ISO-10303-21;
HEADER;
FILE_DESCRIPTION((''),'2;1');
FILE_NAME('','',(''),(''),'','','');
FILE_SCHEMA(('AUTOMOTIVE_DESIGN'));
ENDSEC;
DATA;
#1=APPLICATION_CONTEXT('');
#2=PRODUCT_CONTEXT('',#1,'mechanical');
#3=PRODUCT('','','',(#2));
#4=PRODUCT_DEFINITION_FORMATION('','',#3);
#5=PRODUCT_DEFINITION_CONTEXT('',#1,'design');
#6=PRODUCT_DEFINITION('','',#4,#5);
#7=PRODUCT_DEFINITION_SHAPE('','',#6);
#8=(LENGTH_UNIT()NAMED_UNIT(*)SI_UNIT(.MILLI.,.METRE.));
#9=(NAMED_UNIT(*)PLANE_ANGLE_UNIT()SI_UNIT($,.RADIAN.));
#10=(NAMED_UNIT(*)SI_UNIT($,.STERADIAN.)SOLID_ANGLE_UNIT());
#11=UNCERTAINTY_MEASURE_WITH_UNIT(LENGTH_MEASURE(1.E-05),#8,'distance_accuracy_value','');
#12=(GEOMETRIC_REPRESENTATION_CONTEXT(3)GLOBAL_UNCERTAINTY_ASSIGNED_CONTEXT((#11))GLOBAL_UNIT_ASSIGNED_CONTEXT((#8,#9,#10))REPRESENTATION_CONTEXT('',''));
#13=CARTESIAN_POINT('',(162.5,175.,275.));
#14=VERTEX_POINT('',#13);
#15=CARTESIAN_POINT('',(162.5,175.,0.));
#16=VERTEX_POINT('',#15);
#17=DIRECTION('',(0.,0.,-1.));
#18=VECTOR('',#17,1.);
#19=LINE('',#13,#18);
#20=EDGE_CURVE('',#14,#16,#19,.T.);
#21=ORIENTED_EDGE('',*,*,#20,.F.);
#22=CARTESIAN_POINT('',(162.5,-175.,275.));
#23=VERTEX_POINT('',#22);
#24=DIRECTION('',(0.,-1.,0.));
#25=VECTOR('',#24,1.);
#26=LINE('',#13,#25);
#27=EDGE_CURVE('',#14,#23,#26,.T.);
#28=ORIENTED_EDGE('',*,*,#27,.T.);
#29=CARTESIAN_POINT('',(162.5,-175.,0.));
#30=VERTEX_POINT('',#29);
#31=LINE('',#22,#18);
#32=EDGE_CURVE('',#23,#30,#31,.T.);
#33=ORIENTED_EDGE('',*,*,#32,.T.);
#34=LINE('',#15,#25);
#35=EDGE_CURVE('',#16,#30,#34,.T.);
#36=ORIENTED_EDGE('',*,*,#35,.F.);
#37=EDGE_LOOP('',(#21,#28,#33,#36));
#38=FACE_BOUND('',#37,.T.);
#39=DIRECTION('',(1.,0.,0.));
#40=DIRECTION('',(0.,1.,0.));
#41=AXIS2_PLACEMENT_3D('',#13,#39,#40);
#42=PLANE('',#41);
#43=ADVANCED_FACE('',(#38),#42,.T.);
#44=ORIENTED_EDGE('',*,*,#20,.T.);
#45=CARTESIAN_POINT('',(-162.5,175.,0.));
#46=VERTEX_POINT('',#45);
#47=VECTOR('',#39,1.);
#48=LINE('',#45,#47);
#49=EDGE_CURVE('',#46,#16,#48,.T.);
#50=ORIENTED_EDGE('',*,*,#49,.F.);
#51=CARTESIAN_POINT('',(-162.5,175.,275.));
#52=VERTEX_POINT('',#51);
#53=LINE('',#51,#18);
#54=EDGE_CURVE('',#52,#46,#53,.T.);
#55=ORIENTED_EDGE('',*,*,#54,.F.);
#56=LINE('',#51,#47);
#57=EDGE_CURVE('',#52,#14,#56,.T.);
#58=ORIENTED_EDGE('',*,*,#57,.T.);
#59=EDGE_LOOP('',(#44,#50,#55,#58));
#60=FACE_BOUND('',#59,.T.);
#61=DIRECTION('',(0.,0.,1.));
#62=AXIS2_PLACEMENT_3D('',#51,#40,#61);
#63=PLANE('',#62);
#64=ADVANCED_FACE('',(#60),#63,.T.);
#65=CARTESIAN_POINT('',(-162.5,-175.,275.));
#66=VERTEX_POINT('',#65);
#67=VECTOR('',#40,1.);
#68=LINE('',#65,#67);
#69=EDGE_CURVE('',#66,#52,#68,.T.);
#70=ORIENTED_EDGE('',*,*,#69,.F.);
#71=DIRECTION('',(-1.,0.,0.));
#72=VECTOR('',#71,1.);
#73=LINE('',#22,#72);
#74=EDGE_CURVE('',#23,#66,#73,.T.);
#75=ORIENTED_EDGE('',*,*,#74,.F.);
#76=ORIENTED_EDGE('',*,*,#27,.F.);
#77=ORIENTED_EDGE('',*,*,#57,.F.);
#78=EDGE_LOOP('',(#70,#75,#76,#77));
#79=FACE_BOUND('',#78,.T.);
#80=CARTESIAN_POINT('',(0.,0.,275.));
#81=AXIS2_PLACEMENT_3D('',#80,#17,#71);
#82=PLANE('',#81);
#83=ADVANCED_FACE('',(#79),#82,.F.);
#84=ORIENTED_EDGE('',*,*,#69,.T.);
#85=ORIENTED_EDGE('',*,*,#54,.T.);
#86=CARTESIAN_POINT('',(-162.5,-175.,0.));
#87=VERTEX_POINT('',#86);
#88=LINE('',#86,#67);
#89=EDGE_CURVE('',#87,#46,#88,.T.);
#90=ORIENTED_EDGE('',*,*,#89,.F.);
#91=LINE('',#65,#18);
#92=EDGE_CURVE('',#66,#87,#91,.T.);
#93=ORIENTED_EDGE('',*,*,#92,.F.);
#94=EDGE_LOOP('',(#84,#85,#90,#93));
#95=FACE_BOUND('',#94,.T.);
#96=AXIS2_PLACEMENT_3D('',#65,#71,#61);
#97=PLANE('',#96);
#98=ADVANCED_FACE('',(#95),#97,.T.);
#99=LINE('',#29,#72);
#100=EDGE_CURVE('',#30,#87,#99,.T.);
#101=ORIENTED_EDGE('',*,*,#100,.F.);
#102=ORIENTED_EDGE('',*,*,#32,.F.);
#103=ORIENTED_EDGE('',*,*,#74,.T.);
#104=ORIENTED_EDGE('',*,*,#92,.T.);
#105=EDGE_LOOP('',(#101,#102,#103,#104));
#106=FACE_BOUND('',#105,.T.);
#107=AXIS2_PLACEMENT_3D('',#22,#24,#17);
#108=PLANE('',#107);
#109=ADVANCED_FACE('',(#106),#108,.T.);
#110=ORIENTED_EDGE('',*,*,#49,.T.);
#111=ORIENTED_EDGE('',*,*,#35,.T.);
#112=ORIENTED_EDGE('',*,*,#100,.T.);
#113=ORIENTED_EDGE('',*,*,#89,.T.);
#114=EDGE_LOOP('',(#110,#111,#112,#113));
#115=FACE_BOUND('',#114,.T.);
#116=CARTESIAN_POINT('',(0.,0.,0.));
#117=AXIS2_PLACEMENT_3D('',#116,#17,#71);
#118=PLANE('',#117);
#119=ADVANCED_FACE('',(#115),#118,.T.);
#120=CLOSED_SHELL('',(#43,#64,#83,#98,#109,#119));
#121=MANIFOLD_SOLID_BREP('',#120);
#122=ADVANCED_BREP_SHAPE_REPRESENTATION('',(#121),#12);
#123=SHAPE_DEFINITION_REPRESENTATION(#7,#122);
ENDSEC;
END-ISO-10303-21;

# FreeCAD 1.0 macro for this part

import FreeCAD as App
import Part
import Sketcher

V = App.Vector
Q = App.Units.Quantity

doc = App.newDocument("Part")
params = doc.addObject("Spreadsheet::Sheet", "Params")
for row, (alias, value) in enumerate([
    ("sketch1_width", "325 mm"),
    ("sketch1_height", "350 mm"),
    ("pad1_length", "275 mm"),
], start=1):
    params.set(f"A{row}", alias)
    params.set(f"B{row}", "=" + value)
    params.setAlias(f"B{row}", alias)

body = doc.addObject("PartDesign::Body", "Body")

# Sketch on XY plane
sketch1 = body.newObject("Sketcher::SketchObject", "Sketch")
sketch1.AttachmentSupport = (doc.getObject("XY_Plane"), [""])
sketch1.MapMode = "FlatFace"
sketch1.addGeometry([
    Part.LineSegment(V(162, 175, 0), V(162, -175, 0)),
    Part.LineSegment(V(162, -175, 0), V(-162, -175, 0)),
    Part.LineSegment(V(-162, -175, 0), V(-162, 175, 0)),
    Part.LineSegment(V(-162, 175, 0), V(162, 175, 0)),
], False)
sketch1.addConstraint([
    Sketcher.Constraint("Coincident", 0, 2, 1, 1),
    Sketcher.Constraint("Coincident", 1, 2, 2, 1),
    Sketcher.Constraint("Coincident", 2, 2, 3, 1),
    Sketcher.Constraint("Coincident", 3, 2, 0, 1),
    Sketcher.Constraint("Vertical", 0),
    Sketcher.Constraint("Horizontal", 1),
    Sketcher.Constraint("Vertical", 2),
    Sketcher.Constraint("Horizontal", 3),
    Sketcher.Constraint("Symmetric", 0, 2, 2, 2, -1, 1),
    Sketcher.Constraint("DistanceX", 1, 2, 1, 1, Q("325 mm")),
    Sketcher.Constraint("DistanceY", 0, 2, 0, 1, Q("350 mm")),
])
sketch1.setExpression("Constraints[9]", "Params.sketch1_width")
sketch1.setExpression("Constraints[10]", "Params.sketch1_height")
pad1 = body.newObject("PartDesign::Pad", "Pad")
pad1.Profile = sketch1
pad1.setExpression("Length", "Params.pad1_length")

doc.recompute()
